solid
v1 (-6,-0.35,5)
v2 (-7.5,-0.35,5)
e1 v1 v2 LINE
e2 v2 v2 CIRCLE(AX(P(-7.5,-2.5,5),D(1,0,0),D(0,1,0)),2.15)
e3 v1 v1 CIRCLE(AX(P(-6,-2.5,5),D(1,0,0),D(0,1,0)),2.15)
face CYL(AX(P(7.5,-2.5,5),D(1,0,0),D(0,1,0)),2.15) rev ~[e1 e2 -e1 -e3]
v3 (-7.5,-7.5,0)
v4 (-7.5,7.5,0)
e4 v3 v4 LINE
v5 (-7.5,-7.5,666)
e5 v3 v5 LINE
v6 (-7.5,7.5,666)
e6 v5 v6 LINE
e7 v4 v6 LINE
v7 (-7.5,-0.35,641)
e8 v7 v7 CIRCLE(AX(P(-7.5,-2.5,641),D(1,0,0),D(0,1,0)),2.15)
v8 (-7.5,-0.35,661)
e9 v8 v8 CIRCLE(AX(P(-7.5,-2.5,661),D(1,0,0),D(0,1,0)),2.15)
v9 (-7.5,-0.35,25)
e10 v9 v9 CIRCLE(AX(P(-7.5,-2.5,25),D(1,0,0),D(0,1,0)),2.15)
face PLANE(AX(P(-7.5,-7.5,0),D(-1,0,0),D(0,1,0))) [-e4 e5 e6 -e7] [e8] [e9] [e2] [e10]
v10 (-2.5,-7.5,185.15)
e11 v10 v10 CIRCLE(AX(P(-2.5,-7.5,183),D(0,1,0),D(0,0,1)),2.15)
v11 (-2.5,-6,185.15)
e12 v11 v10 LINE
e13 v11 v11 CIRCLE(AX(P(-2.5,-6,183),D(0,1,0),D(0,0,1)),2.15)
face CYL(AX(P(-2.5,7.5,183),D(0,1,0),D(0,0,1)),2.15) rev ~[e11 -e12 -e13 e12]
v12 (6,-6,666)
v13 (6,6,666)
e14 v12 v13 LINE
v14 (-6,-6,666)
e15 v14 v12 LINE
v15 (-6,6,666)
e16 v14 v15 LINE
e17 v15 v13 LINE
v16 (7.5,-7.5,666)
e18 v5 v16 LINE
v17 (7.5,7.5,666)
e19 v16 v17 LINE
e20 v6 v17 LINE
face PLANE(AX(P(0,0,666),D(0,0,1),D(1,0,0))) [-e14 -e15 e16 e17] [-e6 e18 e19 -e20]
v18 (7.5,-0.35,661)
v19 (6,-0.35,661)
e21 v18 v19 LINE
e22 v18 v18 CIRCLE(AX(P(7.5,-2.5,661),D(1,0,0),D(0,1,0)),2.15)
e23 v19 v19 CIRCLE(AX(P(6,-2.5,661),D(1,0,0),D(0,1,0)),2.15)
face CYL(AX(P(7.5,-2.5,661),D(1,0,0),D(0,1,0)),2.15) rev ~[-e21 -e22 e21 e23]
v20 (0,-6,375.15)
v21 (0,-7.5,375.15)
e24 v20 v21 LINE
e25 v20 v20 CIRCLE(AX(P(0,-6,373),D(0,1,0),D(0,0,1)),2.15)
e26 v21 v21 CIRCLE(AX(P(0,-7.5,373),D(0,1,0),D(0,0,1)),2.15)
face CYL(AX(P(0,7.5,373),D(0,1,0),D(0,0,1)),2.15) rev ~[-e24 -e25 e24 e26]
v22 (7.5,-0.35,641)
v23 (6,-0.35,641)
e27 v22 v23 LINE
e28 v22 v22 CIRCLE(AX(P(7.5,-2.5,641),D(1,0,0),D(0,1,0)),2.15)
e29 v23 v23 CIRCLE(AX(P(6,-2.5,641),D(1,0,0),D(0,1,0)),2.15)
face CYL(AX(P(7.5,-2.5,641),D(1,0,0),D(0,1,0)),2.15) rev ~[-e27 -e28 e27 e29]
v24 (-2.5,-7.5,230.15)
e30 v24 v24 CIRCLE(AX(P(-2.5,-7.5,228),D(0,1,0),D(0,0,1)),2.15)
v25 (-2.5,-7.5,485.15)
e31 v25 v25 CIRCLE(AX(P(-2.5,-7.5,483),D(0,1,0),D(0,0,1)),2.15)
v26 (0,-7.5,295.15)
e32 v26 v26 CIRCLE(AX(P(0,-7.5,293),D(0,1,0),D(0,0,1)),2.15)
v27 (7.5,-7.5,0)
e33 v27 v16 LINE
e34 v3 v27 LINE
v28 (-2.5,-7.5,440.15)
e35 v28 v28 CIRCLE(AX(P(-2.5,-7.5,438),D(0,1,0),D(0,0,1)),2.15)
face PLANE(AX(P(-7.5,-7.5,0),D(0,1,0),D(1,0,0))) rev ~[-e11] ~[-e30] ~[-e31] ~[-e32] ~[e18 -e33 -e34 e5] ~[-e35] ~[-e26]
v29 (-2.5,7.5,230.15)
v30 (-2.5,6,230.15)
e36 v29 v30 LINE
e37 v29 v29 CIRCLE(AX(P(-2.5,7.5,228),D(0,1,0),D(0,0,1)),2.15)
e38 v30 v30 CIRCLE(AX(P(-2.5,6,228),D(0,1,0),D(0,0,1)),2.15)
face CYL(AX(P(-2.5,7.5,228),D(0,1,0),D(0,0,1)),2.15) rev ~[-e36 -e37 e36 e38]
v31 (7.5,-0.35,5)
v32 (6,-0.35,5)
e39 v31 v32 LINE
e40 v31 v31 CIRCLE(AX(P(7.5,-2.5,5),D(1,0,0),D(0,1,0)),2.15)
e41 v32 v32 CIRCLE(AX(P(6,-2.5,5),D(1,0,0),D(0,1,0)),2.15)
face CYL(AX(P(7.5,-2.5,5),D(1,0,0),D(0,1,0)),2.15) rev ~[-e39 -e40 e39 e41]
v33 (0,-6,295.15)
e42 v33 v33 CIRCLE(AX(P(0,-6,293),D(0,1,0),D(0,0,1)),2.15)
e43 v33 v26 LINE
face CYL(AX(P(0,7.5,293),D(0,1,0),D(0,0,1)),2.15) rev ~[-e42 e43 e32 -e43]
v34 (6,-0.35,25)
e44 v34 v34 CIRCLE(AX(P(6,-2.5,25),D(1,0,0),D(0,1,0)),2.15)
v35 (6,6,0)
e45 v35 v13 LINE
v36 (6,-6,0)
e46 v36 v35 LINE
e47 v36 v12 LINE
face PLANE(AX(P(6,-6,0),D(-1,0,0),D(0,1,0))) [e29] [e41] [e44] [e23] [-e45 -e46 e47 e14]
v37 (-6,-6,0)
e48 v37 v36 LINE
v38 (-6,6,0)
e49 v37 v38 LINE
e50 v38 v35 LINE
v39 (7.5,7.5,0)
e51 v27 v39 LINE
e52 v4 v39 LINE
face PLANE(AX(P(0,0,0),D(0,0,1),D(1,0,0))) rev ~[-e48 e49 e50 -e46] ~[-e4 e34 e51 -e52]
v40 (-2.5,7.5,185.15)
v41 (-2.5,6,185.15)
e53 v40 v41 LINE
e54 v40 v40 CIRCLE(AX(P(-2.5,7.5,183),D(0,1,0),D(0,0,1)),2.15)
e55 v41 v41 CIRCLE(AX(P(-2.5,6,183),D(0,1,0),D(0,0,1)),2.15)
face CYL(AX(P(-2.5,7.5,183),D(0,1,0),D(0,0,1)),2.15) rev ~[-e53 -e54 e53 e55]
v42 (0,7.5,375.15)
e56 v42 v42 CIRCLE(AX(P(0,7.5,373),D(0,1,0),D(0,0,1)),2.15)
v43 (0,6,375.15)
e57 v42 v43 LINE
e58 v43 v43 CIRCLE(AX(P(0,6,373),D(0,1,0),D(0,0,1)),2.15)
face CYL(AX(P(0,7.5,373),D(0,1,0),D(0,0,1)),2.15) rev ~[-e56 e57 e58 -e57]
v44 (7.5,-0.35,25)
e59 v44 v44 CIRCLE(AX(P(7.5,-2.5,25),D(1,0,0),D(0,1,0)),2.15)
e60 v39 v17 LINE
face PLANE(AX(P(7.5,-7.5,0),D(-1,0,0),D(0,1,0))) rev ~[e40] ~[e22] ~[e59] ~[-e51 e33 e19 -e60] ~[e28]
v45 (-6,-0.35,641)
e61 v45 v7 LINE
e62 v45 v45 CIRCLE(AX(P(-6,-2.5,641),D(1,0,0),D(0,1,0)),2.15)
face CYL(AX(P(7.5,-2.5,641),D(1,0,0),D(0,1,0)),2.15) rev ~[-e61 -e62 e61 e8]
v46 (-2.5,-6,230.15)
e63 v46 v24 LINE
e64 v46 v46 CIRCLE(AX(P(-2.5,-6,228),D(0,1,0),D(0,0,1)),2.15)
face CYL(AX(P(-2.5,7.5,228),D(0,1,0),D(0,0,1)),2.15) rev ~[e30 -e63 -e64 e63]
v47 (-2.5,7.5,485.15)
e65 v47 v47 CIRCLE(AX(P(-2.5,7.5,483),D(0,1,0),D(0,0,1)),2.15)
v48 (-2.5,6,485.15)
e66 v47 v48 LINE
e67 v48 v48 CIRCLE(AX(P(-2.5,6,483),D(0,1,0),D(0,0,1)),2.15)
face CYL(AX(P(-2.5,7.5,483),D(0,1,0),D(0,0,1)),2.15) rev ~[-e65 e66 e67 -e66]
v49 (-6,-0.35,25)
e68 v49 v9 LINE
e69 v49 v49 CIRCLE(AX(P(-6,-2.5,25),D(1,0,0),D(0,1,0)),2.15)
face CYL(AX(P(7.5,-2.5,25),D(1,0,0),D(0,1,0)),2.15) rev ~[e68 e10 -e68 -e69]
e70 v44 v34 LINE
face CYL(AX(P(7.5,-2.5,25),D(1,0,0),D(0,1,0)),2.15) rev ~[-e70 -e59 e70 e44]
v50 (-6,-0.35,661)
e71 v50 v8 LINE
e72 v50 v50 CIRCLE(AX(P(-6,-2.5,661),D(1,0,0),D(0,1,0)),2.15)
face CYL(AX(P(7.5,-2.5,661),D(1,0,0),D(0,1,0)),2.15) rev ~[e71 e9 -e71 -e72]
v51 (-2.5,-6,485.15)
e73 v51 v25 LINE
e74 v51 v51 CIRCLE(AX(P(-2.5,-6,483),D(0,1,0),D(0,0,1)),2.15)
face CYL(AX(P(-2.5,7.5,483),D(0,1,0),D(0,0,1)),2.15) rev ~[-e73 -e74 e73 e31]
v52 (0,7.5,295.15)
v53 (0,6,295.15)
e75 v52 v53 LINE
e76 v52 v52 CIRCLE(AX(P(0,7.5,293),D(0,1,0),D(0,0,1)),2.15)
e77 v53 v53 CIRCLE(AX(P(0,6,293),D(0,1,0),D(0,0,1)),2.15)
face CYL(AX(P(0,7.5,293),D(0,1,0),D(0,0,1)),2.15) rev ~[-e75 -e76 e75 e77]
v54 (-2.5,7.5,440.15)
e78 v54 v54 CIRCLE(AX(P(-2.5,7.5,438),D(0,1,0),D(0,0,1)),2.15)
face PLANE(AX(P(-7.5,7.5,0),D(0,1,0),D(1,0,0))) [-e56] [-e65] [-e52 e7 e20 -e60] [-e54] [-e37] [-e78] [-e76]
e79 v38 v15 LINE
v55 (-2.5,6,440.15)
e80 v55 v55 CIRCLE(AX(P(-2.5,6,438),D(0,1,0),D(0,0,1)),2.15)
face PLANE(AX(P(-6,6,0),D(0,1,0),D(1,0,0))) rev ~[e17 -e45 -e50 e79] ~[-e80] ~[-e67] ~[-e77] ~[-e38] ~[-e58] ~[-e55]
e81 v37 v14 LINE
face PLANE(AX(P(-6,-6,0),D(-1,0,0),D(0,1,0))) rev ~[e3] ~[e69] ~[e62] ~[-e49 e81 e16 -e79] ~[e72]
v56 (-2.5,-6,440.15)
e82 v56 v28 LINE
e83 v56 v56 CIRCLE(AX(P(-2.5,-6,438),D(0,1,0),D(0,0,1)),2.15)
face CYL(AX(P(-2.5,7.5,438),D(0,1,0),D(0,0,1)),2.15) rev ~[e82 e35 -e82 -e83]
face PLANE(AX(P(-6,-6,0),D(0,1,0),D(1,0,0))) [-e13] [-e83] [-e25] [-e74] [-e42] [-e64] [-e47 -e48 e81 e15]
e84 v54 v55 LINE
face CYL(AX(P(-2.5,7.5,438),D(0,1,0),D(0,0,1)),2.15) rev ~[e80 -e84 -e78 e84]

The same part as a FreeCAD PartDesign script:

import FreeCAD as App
import Part
import Sketcher
from FreeCAD import Vector
Q = App.Units.Quantity

doc = App.newDocument("Part")
params = doc.addObject("Spreadsheet::Sheet", "Params")
for row, (alias, value) in enumerate([
    ("sketch1_width", "15 mm"),
    ("sketch1_width2", "12 mm"),
    ("pad1_length", "666 mm"),
    ("sketch2_diameter", "4.3 mm"),
    ("sketch3_diameter", "4.3 mm"),
], start=1):
    params.set(f"A{row}", alias)
    params.set(f"B{row}", "=" + value)
    params.setAlias(f"B{row}", alias)

body = doc.addObject("PartDesign::Body", "Body")

sketch1 = doc.addObject("Sketcher::SketchObject", "Sketch")
body.addObject(sketch1)
sketch1.AttachmentSupport = (doc.XY_Plane, [""])
sketch1.MapMode = "FlatFace"
sketch1.addGeometry([
    Part.LineSegment(Vector(-8, 8, 0), Vector(-8, -8, 0)),
    Part.LineSegment(Vector(-8, -8, 0), Vector(8, -8, 0)),
    Part.LineSegment(Vector(8, -8, 0), Vector(8, 8, 0)),
    Part.LineSegment(Vector(8, 8, 0), Vector(-8, 8, 0)),
    Part.LineSegment(Vector(6, -6, 0), Vector(-6, -6, 0)),
    Part.LineSegment(Vector(-6, -6, 0), Vector(-6, 6, 0)),
    Part.LineSegment(Vector(-6, 6, 0), Vector(6, 6, 0)),
    Part.LineSegment(Vector(6, 6, 0), Vector(6, -6, 0)),
], False)
sketch1.addConstraint([
    Sketcher.Constraint("Coincident", 0, 2, 1, 1),
    Sketcher.Constraint("Coincident", 1, 2, 2, 1),
    Sketcher.Constraint("Coincident", 2, 2, 3, 1),
    Sketcher.Constraint("Coincident", 3, 2, 0, 1),
    Sketcher.Constraint("Coincident", 4, 2, 5, 1),
    Sketcher.Constraint("Coincident", 5, 2, 6, 1),
    Sketcher.Constraint("Coincident", 6, 2, 7, 1),
    Sketcher.Constraint("Coincident", 7, 2, 4, 1),
    Sketcher.Constraint("Vertical", 0),
    Sketcher.Constraint("Horizontal", 1),
    Sketcher.Constraint("Vertical", 2),
    Sketcher.Constraint("Horizontal", 3),
    Sketcher.Constraint("Horizontal", 4),
    Sketcher.Constraint("Vertical", 5),
    Sketcher.Constraint("Horizontal", 6),
    Sketcher.Constraint("Vertical", 7),
    Sketcher.Constraint("Symmetric", 0, 2, 2, 2, -1, 1),
    Sketcher.Constraint("Symmetric", 4, 2, 6, 2, -1, 1),
    Sketcher.Constraint("Equal", 3, 0),
    Sketcher.Constraint("Equal", 6, 5),
    Sketcher.Constraint("DistanceX", 1, 1, 1, 2, Q("15 mm")),
    Sketcher.Constraint("DistanceX", 4, 2, 4, 1, Q("12 mm")),
])
sketch1.setExpression("Constraints[20]", "Params.sketch1_width")
sketch1.setExpression("Constraints[21]", "Params.sketch1_width2")
pad1 = doc.addObject("PartDesign::Pad", "Pad")
body.addObject(pad1)
pad1.Profile = sketch1
pad1.setExpression("Length", "Params.pad1_length")

sketch2 = doc.addObject("Sketcher::SketchObject", "Sketch001")
body.addObject(sketch2)
sketch2.AttachmentSupport = (doc.YZ_Plane, [""])
sketch2.MapMode = "FlatFace"
sketch2.AttachmentOffset = App.Placement(Vector(0, 0, 7.5), App.Rotation())
sketch2.addGeometry([
    Part.Circle(Vector(-2.5, 5, 0), Vector(0, 0, 1), 2.1),
    Part.Circle(Vector(-2.5, 661, 0), Vector(0, 0, 1), 2.1),
    Part.Circle(Vector(-2.5, 25, 0), Vector(0, 0, 1), 2.1),
    Part.Circle(Vector(-2.5, 641, 0), Vector(0, 0, 1), 2.1),
], False)
sketch2.addConstraint([
    Sketcher.Constraint("Equal", 0, 1),
    Sketcher.Constraint("Equal", 1, 2),
    Sketcher.Constraint("Equal", 2, 3),
    Sketcher.Constraint("Vertical", 0, 3, 1, 3),
    Sketcher.Constraint("Vertical", 1, 3, 2, 3),
    Sketcher.Constraint("Vertical", 2, 3, 3, 3),
    Sketcher.Constraint("Diameter", 0, Q("4.3 mm")),
    Sketcher.Constraint("DistanceY", -1, 1, 0, 3, Q("5 mm")),
    Sketcher.Constraint("DistanceY", -1, 1, 1, 3, Q("661 mm")),
    Sketcher.Constraint("DistanceY", -1, 1, 2, 3, Q("25 mm")),
    Sketcher.Constraint("DistanceY", -1, 1, 3, 3, Q("641 mm")),
    Sketcher.Constraint("DistanceX", 0, 3, -1, 1, Q("2.5 mm")),
])
sketch2.setExpression("Constraints[6]", "Params.sketch2_diameter")
pocket1 = doc.addObject("PartDesign::Pocket", "Pocket")
body.addObject(pocket1)
pocket1.Profile = sketch2
pocket1.Type = "ThroughAll"

sketch3 = doc.addObject("Sketcher::SketchObject", "Sketch002")
body.addObject(sketch3)
sketch3.AttachmentSupport = (doc.XZ_Plane, [""])
sketch3.MapMode = "FlatFace"
sketch3.AttachmentOffset = App.Placement(Vector(0, 0, -7.5), App.Rotation())
sketch3.addGeometry([
    Part.Circle(Vector(-2.5, 228, 0), Vector(0, 0, 1), 2.1),
    Part.Circle(Vector(-2.5, 438, 0), Vector(0, 0, 1), 2.1),
    Part.Circle(Vector(-2.5, 183, 0), Vector(0, 0, 1), 2.1),
    Part.Circle(Vector(-2.5, 483, 0), Vector(0, 0, 1), 2.1),
    Part.Circle(Vector(0, 373, 0), Vector(0, 0, 1), 2.1),
    Part.Circle(Vector(0, 293, 0), Vector(0, 0, 1), 2.1),
], False)
sketch3.addConstraint([
    Sketcher.Constraint("Equal", 0, 1),
    Sketcher.Constraint("Equal", 1, 2),
    Sketcher.Constraint("Equal", 2, 3),
    Sketcher.Constraint("Equal", 3, 4),
    Sketcher.Constraint("Equal", 4, 5),
    Sketcher.Constraint("PointOnObject", 4, 3, -2),
    Sketcher.Constraint("PointOnObject", 5, 3, -2),
    Sketcher.Constraint("Vertical", 0, 3, 1, 3),
    Sketcher.Constraint("Vertical", 1, 3, 2, 3),
    Sketcher.Constraint("Vertical", 2, 3, 3, 3),
    Sketcher.Constraint("Diameter", 0, Q("4.3 mm")),
    Sketcher.Constraint("DistanceY", -1, 1, 0, 3, Q("228 mm")),
    Sketcher.Constraint("DistanceY", -1, 1, 1, 3, Q("438 mm")),
    Sketcher.Constraint("DistanceY", -1, 1, 2, 3, Q("183 mm")),
    Sketcher.Constraint("DistanceY", -1, 1, 3, 3, Q("483 mm")),
    Sketcher.Constraint("DistanceY", -1, 1, 4, 3, Q("373 mm")),
    Sketcher.Constraint("DistanceY", -1, 1, 5, 3, Q("293 mm")),
    Sketcher.Constraint("DistanceX", 0, 3, -1, 1, Q("2.5 mm")),
])
sketch3.setExpression("Constraints[10]", "Params.sketch3_diameter")
pocket2 = doc.addObject("PartDesign::Pocket", "Pocket001")
body.addObject(pocket2)
pocket2.Profile = sketch3
pocket2.Type = "ThroughAll"
pocket2.Reversed = True

doc.recompute()
